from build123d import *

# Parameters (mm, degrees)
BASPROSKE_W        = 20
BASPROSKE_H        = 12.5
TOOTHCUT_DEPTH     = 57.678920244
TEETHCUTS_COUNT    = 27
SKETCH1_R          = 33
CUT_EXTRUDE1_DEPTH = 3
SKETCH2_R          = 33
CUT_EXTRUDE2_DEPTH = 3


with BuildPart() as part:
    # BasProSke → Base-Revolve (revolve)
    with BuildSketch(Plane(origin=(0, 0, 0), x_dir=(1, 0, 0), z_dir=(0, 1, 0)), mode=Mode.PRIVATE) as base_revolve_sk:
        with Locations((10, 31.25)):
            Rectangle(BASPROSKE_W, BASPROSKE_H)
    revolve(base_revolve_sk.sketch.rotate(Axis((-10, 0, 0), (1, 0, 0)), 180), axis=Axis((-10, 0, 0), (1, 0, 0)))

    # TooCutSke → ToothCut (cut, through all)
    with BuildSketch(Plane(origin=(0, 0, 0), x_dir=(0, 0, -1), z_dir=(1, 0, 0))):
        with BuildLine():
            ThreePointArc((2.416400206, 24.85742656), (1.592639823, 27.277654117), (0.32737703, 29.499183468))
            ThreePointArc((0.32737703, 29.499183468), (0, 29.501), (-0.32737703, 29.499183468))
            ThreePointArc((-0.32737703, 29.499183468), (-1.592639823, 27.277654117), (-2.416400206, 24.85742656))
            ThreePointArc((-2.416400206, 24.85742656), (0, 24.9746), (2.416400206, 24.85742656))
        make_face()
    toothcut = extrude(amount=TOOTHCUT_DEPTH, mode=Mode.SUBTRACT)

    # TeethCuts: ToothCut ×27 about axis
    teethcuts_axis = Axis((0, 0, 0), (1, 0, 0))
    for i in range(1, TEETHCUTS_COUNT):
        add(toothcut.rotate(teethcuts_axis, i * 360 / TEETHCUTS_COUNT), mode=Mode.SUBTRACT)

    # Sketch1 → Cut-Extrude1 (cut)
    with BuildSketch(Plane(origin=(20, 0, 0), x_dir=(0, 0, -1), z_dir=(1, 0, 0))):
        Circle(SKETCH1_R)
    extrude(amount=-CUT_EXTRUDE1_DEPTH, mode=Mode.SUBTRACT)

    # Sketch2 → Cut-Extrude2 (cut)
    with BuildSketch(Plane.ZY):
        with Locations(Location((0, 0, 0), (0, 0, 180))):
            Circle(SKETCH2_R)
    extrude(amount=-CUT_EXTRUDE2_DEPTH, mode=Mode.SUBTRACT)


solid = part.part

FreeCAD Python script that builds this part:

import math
import FreeCAD as App
import Part
import Sketcher
from FreeCAD import Vector
Q = App.Units.Quantity

doc = App.newDocument("Part")
body = doc.addObject("PartDesign::Body", "Body")

# Sketch on XZ plane
sketch1 = body.newObject("Sketcher::SketchObject", "Sketch")
sketch1.AttachmentSupport = (doc.getObject("XZ_Plane"), [""])
sketch1.MapMode = "FlatFace"
sketch1.addGeometry(Part.LineSegment(Vector(0, -38, 0), Vector(0, -25, 0)), False)
sketch1.addGeometry(Part.LineSegment(Vector(0, -25, 0), Vector(20, -25, 0)), False)
sketch1.addGeometry(Part.LineSegment(Vector(20, -25, 0), Vector(20, -38, 0)), False)
sketch1.addGeometry(Part.LineSegment(Vector(20, -38, 0), Vector(0, -38, 0)), False)
sketch1.addConstraint(Sketcher.Constraint("Coincident", 0, 2, 1, 1))
sketch1.addConstraint(Sketcher.Constraint("Coincident", 1, 2, 2, 1))
sketch1.addConstraint(Sketcher.Constraint("Coincident", 2, 2, 3, 1))
sketch1.addConstraint(Sketcher.Constraint("Coincident", 3, 2, 0, 1))
sketch1.addConstraint(Sketcher.Constraint("Vertical", 0))
sketch1.addConstraint(Sketcher.Constraint("Horizontal", 1))
sketch1.addConstraint(Sketcher.Constraint("Vertical", 2))
sketch1.addConstraint(Sketcher.Constraint("Horizontal", 3))
sketch1.addConstraint(Sketcher.Constraint("PointOnObject", 0, 2, -2))
sketch1.addConstraint(Sketcher.Constraint("DistanceX", 1, 1, 1, 2, Q("20 mm")))
sketch1.addConstraint(Sketcher.Constraint("DistanceY", 0, 1, 0, 2, Q("12.5 mm")))
sketch1.addConstraint(Sketcher.Constraint("DistanceY", 0, 2, -1, 1, Q("25 mm")))
revolution = body.newObject("PartDesign::Revolution", "Revolution")
revolution.Profile = sketch1
revolution.ReferenceAxis = (sketch1, ["H_Axis"])
revolution.Angle = 360

# Sketch on YZ plane
sketch2 = body.newObject("Sketcher::SketchObject", "Sketch001")
sketch2.AttachmentSupport = (doc.getObject("YZ_Plane"), [""])
sketch2.MapMode = "FlatFace"
sketch2.addGeometry(Part.ArcOfCircle(Part.Circle(Vector(21.7, 10.7, 0), Vector(0, 0, 1), 13.5), math.radians(-77), math.radians(-55)), False)
sketch2.addGeometry(Part.ArcOfCircle(Part.Circle(Vector(0, 0, 0), Vector(0, 0, 1), 29.5), math.radians(-0.64), math.radians(0.64)), False)
sketch2.addGeometry(Part.ArcOfCircle(Part.Circle(Vector(21.7, -10.7, 0), Vector(0, 0, 1), 13.5), math.radians(55), math.radians(77)), False)
sketch2.addGeometry(Part.ArcOfCircle(Part.Circle(Vector(0, 0, 0), Vector(0, 0, 1), 25), math.radians(-5.55), math.radians(5.55)), False)
sketch2.addConstraint(Sketcher.Constraint("Coincident", 0, 2, 1, 1))
sketch2.addConstraint(Sketcher.Constraint("Coincident", 1, 2, 2, 1))
sketch2.addConstraint(Sketcher.Constraint("Coincident", 2, 2, 3, 2))
sketch2.addConstraint(Sketcher.Constraint("Coincident", 3, 1, 0, 1))
sketch2.addConstraint(Sketcher.Constraint("Coincident", 1, 3, -1, 1))
sketch2.addConstraint(Sketcher.Constraint("Coincident", 3, 3, -1, 1))
sketch2.addConstraint(Sketcher.Constraint("Equal", 0, 2))
sketch2.addConstraint(Sketcher.Constraint("Symmetric", 0, 3, 2, 3, -1))
sketch2.addConstraint(Sketcher.Constraint("Radius", 0, Q("13.5 mm")))
sketch2.addConstraint(Sketcher.Constraint("Radius", 1, Q("29.501 mm")))
sketch2.addConstraint(Sketcher.Constraint("Radius", 3, Q("24.9746 mm")))
sketch2.addConstraint(Sketcher.Constraint("DistanceY", -1, 1, 2, 2, Q("2.4164 mm")))
sketch2.addConstraint(Sketcher.Constraint("DistanceX", -1, 1, 0, 3, Q("21.737218 mm")))
pocket1 = body.newObject("PartDesign::Pocket", "Pocket")
pocket1.Profile = sketch2
pocket1.Type = "ThroughAll"
pocket1.Reversed = True
doc.recompute()

polarpattern = body.newObject("PartDesign::PolarPattern", "PolarPattern")
polarpattern.Originals = [pocket1]
polarpattern.Axis = (doc.getObject("X_Axis"), [""])
polarpattern.Angle = 360
polarpattern.Occurrences = 27
body.Tip = polarpattern

# Sketch on YZ plane
sketch3 = body.newObject("Sketcher::SketchObject", "Sketch002")
sketch3.AttachmentSupport = (doc.getObject("YZ_Plane"), [""])
sketch3.MapMode = "FlatFace"
sketch3.AttachmentOffset = App.Placement(Vector(0, 0, 20), App.Rotation())
sketch3.addGeometry(Part.Circle(Vector(0, 0, 0), Vector(0, 0, 1), 33), False)
sketch3.addConstraint(Sketcher.Constraint("Coincident", 0, 3, -1, 1))
sketch3.addConstraint(Sketcher.Constraint("Diameter", 0, Q("66 mm")))
pocket2 = body.newObject("PartDesign::Pocket", "Pocket001")
pocket2.Profile = sketch3
pocket2.Length = 3

# Sketch on YZ plane
sketch4 = body.newObject("Sketcher::SketchObject", "Sketch003")
sketch4.AttachmentSupport = (doc.getObject("YZ_Plane"), [""])
sketch4.MapMode = "FlatFace"
sketch4.addGeometry(Part.Circle(Vector(0, 0, 0), Vector(0, 0, 1), 33), False)
sketch4.addConstraint(Sketcher.Constraint("Coincident", 0, 3, -1, 1))
sketch4.addConstraint(Sketcher.Constraint("Diameter", 0, Q("66 mm")))
pocket3 = body.newObject("PartDesign::Pocket", "Pocket002")
pocket3.Profile = sketch4
pocket3.Length = 3
pocket3.Reversed = True

doc.recompute()
